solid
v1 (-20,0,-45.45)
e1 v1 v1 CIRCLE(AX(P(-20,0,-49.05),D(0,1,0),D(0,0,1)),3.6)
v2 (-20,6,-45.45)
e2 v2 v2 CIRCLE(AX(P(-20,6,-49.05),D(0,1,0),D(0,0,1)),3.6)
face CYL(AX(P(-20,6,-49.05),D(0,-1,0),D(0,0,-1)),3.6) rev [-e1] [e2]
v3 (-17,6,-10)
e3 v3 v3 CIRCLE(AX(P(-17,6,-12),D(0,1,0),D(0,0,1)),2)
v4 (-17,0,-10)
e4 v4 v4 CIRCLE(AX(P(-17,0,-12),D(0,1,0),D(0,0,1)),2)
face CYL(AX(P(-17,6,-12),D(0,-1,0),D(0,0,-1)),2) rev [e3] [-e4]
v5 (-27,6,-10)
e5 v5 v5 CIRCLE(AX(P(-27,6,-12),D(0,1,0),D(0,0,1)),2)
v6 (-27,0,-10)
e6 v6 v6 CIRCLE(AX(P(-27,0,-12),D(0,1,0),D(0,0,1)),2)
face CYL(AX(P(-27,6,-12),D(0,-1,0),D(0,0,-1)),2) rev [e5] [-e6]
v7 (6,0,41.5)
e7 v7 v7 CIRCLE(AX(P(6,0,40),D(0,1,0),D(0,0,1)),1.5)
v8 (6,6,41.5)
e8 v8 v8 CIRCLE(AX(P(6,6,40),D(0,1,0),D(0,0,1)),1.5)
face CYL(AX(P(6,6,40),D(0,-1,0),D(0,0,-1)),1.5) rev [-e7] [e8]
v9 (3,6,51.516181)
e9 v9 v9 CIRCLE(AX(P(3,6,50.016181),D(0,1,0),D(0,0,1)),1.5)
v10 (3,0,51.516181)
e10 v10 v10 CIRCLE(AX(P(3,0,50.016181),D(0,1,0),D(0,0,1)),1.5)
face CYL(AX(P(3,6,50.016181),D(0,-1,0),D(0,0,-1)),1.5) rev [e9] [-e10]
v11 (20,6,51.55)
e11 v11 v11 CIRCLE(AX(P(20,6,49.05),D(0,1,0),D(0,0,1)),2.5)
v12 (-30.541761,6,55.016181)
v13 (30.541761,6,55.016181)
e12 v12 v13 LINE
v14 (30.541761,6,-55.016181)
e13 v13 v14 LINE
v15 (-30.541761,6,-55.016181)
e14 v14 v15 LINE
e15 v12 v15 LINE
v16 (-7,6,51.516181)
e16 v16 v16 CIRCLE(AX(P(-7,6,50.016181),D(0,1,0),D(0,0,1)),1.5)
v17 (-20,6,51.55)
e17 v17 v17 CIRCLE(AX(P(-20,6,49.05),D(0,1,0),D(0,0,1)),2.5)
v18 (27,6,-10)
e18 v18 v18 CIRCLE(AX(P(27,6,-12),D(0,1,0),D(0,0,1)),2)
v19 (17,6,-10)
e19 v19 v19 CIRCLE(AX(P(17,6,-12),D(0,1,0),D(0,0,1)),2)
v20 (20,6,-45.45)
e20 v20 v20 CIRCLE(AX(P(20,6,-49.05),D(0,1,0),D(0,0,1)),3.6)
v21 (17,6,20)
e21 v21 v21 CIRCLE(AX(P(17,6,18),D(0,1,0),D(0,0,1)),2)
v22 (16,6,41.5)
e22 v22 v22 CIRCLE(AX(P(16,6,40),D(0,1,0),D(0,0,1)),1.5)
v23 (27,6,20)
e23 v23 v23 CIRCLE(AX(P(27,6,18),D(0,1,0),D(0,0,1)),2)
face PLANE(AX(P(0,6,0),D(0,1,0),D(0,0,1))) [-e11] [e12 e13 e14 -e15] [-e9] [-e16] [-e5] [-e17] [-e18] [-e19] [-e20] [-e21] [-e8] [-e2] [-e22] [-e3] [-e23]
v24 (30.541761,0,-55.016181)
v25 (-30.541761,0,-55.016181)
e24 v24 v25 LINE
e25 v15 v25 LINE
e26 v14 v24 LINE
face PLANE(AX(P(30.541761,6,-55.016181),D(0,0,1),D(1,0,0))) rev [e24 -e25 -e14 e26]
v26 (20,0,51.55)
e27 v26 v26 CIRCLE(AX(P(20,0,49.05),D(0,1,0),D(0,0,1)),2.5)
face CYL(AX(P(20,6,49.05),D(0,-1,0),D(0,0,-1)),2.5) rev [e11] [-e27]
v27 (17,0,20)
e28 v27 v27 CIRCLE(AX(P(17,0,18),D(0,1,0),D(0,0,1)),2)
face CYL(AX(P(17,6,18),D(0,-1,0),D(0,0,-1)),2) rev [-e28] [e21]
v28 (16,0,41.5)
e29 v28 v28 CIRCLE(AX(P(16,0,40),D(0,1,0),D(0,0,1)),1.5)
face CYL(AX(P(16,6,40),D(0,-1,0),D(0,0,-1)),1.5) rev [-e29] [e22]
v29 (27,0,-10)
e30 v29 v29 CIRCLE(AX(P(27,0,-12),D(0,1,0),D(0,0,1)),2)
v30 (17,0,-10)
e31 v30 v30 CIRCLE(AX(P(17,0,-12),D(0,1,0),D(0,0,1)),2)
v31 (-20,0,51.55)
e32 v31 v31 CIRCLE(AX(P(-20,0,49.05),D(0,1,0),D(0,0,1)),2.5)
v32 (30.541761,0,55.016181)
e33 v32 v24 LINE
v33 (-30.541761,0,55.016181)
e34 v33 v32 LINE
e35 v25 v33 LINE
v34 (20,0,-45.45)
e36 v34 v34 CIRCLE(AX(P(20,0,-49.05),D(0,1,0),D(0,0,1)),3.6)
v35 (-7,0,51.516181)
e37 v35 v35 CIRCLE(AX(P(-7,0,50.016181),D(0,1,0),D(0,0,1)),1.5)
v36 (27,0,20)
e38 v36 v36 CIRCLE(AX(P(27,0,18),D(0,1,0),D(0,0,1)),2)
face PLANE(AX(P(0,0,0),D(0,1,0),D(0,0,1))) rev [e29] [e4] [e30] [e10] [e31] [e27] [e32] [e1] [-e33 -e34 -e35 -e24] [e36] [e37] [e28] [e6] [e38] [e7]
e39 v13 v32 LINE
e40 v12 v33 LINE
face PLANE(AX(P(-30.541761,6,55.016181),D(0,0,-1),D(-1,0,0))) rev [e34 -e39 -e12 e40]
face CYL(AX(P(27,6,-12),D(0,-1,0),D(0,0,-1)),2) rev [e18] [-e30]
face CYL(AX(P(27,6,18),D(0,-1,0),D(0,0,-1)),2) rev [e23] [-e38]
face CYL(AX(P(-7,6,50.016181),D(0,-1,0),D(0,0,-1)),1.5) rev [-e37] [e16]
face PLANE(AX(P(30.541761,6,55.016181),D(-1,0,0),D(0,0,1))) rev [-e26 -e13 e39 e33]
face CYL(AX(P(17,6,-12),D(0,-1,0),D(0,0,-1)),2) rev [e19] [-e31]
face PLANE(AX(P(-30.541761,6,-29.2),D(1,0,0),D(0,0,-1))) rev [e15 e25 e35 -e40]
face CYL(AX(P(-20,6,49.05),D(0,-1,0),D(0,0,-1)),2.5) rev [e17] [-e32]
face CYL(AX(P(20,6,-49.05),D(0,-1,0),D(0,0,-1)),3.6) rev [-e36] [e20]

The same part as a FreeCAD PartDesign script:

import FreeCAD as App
import Part
import Sketcher


def add_polygon(sketch, points):
    """Adds a closed chain of lines whose ends are joined by coincident constraints."""
    first, n = sketch.GeometryCount, len(points)
    for a, b in zip(points, points[1:] + points[:1]):
        sketch.addGeometry(Part.LineSegment(App.Vector(*a, 0), App.Vector(*b, 0)), False)
    for i in range(n):
        sketch.addConstraint(Sketcher.Constraint("Coincident", first + i, 2, first + (i + 1) % n, 1))

doc = App.newDocument("Part")
body = doc.addObject("PartDesign::Body", "Body")

# Sketch on XZ plane
sketch1 = body.newObject("Sketcher::SketchObject", "Sketch")
sketch1.AttachmentSupport = (doc.getObject("XZ_Plane"), [""])
sketch1.MapMode = "FlatFace"
add_polygon(sketch1, [(-31, 55), (31, 55), (31, -55), (-31, -55)])  # lines 0-3
sketch1.addConstraint([
    Sketcher.Constraint("Horizontal", 0),
    Sketcher.Constraint("Vertical", 1),
    Sketcher.Constraint("Horizontal", 2),
    Sketcher.Constraint("Vertical", 3),
    Sketcher.Constraint("Symmetric", 0, 2, 2, 2, -1, 1),
    Sketcher.Constraint("DistanceX", 0, 1, 0, 2, 61.083521),
    Sketcher.Constraint("DistanceY", 1, 2, 1, 1, 110.032362),
])
pad1 = body.newObject("PartDesign::Pad", "Pad")
pad1.Profile = sketch1
pad1.Length = 6
pad1.Reversed = True

# Sketch on XZ plane
sketch2 = body.newObject("Sketcher::SketchObject", "Sketch001")
sketch2.AttachmentSupport = (doc.getObject("XZ_Plane"), [""])
sketch2.MapMode = "FlatFace"
sketch2.addGeometry([
    Part.Circle(App.Vector(-20, -49, 0), App.Vector(0, 0, 1), 3.6),  # 0
    Part.Circle(App.Vector(20, -49, 0), App.Vector(0, 0, 1), 3.6),  # 1
    Part.Circle(App.Vector(-20, 49, 0), App.Vector(0, 0, 1), 2.5),  # 2
    Part.Circle(App.Vector(20, 49, 0), App.Vector(0, 0, 1), 2.5),  # 3
    Part.Circle(App.Vector(17, -12, 0), App.Vector(0, 0, 1), 2),  # 4
    Part.Circle(App.Vector(27, -12, 0), App.Vector(0, 0, 1), 2),  # 5
    Part.Circle(App.Vector(27, 18, 0), App.Vector(0, 0, 1), 2),  # 6
    Part.Circle(App.Vector(17, 18, 0), App.Vector(0, 0, 1), 2),  # 7
    Part.Circle(App.Vector(-7, 50, 0), App.Vector(0, 0, 1), 1.5),  # 8
    Part.Circle(App.Vector(3, 50, 0), App.Vector(0, 0, 1), 1.5),  # 9
    Part.Circle(App.Vector(-27, -12, 0), App.Vector(0, 0, 1), 2),  # 10
    Part.Circle(App.Vector(-17, -12, 0), App.Vector(0, 0, 1), 2),  # 11
    Part.Circle(App.Vector(6, 40, 0), App.Vector(0, 0, 1), 1.5),  # 12
    Part.Circle(App.Vector(16, 40, 0), App.Vector(0, 0, 1), 1.5),  # 13
], False)
sketch2.addConstraint([
    Sketcher.Constraint("Equal", 0, 1),
    Sketcher.Constraint("Equal", 2, 3),
    Sketcher.Constraint("Equal", 4, 5),
    Sketcher.Constraint("Equal", 5, 6),
    Sketcher.Constraint("Equal", 6, 7),
    Sketcher.Constraint("Equal", 8, 9),
    Sketcher.Constraint("Equal", 7, 10),
    Sketcher.Constraint("Equal", 10, 11),
    Sketcher.Constraint("Equal", 9, 12),
    Sketcher.Constraint("Equal", 12, 13),
    Sketcher.Constraint("Symmetric", 1, 3, 2, 3, -1, 1),
    Sketcher.Constraint("Symmetric", 0, 3, 3, 3, -1, 1),
    Sketcher.Constraint("Symmetric", 0, 3, 1, 3, -2),
    Sketcher.Constraint("Symmetric", 5, 3, 10, 3, -2),
    Sketcher.Constraint("Symmetric", 4, 3, 11, 3, -2),
    Sketcher.Constraint("Horizontal", 4, 3, 5, 3),
    Sketcher.Constraint("Horizontal", 6, 3, 7, 3),
    Sketcher.Constraint("Horizontal", 8, 3, 9, 3),
    Sketcher.Constraint("Horizontal", 12, 3, 13, 3),
    Sketcher.Constraint("Vertical", 5, 3, 6, 3),
    Sketcher.Constraint("Vertical", 4, 3, 7, 3),
    Sketcher.Constraint("Diameter", 2, 5.0),
    Sketcher.Constraint("Diameter", 4, 4.0),
    Sketcher.Constraint("Diameter", 8, 3.0),
    Sketcher.Constraint("Diameter", 0, 7.2),
    Sketcher.Constraint("DistanceX", 0, 3, -1, 1, 20.0),
    Sketcher.Constraint("DistanceX", -1, 1, 4, 3, 17.0),
    Sketcher.Constraint("DistanceY", 4, 3, -1, 1, 12.0),
    Sketcher.Constraint("DistanceX", -1, 1, 5, 3, 27.0),
    Sketcher.Constraint("DistanceY", -1, 1, 6, 3, 18.0),
    Sketcher.Constraint("DistanceX", 8, 3, -1, 1, 7.0),
    Sketcher.Constraint("DistanceX", -1, 1, 9, 3, 3.0),
    Sketcher.Constraint("DistanceX", -1, 1, 12, 3, 6.0),
    Sketcher.Constraint("DistanceY", -1, 1, 12, 3, 40.0),
    Sketcher.Constraint("DistanceX", -1, 1, 13, 3, 16.0),
    Sketcher.Constraint("DistanceY", 0, 3, 2, 3, 98.1),
    Sketcher.Constraint("DistanceY", -1, 1, 8, 3, 50.016181),
])
pocket1 = body.newObject("PartDesign::Pocket", "Pocket")
pocket1.Profile = sketch2
pocket1.Length = 6

doc.recompute()
